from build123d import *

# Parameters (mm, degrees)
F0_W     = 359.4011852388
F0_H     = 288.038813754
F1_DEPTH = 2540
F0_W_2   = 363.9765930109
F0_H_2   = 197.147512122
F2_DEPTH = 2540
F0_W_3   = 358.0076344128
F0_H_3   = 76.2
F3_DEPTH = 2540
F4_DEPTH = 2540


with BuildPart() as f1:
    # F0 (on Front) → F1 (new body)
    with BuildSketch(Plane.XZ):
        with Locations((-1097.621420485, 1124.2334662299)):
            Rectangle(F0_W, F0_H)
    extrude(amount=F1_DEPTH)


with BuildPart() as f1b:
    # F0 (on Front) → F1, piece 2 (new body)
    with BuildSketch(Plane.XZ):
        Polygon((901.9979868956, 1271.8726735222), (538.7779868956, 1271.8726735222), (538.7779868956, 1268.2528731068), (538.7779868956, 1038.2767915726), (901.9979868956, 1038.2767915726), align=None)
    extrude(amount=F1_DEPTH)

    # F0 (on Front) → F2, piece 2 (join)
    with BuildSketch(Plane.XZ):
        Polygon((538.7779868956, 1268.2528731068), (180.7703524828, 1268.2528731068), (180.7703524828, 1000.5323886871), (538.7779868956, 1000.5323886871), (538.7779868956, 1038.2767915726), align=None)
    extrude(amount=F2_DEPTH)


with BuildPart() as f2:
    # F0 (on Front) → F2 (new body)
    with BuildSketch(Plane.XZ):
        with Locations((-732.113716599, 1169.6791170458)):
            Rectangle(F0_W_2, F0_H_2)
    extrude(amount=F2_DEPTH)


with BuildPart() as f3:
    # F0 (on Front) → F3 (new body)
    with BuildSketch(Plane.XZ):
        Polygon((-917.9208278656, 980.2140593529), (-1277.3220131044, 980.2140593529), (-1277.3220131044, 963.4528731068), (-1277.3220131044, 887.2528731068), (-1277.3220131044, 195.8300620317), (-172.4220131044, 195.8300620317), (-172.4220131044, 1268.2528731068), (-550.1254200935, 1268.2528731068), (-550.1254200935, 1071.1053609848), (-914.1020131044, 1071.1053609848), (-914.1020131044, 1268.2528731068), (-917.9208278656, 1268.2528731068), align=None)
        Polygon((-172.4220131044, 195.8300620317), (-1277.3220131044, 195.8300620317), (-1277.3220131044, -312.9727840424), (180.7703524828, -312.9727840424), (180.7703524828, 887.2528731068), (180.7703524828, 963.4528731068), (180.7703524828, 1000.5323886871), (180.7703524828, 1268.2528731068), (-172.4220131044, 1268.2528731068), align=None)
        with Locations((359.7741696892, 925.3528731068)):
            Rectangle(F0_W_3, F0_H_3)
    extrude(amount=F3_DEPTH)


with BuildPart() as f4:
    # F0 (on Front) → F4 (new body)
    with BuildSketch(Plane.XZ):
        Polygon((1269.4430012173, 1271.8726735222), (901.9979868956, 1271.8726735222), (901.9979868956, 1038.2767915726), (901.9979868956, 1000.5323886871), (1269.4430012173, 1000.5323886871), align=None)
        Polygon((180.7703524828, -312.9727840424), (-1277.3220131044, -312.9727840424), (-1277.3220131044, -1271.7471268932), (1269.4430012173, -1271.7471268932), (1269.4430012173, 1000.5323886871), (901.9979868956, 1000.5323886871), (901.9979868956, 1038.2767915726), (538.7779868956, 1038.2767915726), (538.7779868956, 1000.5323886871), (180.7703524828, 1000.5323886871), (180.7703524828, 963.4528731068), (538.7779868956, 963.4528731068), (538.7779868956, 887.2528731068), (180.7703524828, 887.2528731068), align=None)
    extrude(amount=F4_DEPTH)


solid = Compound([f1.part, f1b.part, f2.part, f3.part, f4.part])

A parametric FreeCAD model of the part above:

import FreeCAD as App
import Part
import Sketcher
from FreeCAD import Vector
Q = App.Units.Quantity

doc = App.newDocument("Part")
body = doc.addObject("PartDesign::Body", "Body")

# Sketch on XZ plane
sketch1 = body.newObject("Sketcher::SketchObject", "Sketch")
sketch1.AttachmentSupport = (doc.getObject("XZ_Plane"), [""])
sketch1.MapMode = "FlatFace"
sketch1.addGeometry(Part.LineSegment(Vector(-1277, 1268, 0), Vector(-1277, 980, 0)), False)
sketch1.addGeometry(Part.LineSegment(Vector(-1277, 980, 0), Vector(-918, 980, 0)), False)
sketch1.addGeometry(Part.LineSegment(Vector(-918, 980, 0), Vector(-918, 1268, 0)), False)
sketch1.addGeometry(Part.LineSegment(Vector(-918, 1268, 0), Vector(-1277, 1268, 0)), False)
sketch1.addConstraint(Sketcher.Constraint("Coincident", 0, 2, 1, 1))
sketch1.addConstraint(Sketcher.Constraint("Coincident", 1, 2, 2, 1))
sketch1.addConstraint(Sketcher.Constraint("Coincident", 2, 2, 3, 1))
sketch1.addConstraint(Sketcher.Constraint("Coincident", 3, 2, 0, 1))
sketch1.addConstraint(Sketcher.Constraint("Vertical", 0))
sketch1.addConstraint(Sketcher.Constraint("Horizontal", 1))
sketch1.addConstraint(Sketcher.Constraint("Vertical", 2))
sketch1.addConstraint(Sketcher.Constraint("Horizontal", 3))
sketch1.addConstraint(Sketcher.Constraint("DistanceX", 1, 1, 1, 2, 359.401185))
sketch1.addConstraint(Sketcher.Constraint("DistanceY", 0, 2, 0, 1, 288.038814))
sketch1.addConstraint(Sketcher.Constraint("DistanceY", -1, 1, 0, 2, 980.214059))
sketch1.addConstraint(Sketcher.Constraint("DistanceX", 0, 2, -1, 1, 1277.322013))
pad1 = body.newObject("PartDesign::Pad", "Pad")
pad1.Profile = sketch1
pad1.Length = Q("100 in")
body2 = doc.addObject("PartDesign::Body", "Body001")

# Sketch on XZ plane
sketch2 = body2.newObject("Sketcher::SketchObject", "Sketch001")
sketch2.AttachmentSupport = (doc.getObject("XZ_Plane001"), [""])
sketch2.MapMode = "FlatFace"
sketch2.addGeometry(Part.LineSegment(Vector(902, 1272, 0), Vector(539, 1272, 0)), False)
sketch2.addGeometry(Part.LineSegment(Vector(539, 1272, 0), Vector(539, 1038, 0)), False)
sketch2.addGeometry(Part.LineSegment(Vector(539, 1038, 0), Vector(902, 1038, 0)), False)
sketch2.addGeometry(Part.LineSegment(Vector(902, 1038, 0), Vector(902, 1272, 0)), False)
sketch2.addConstraint(Sketcher.Constraint("Coincident", 0, 2, 1, 1))
sketch2.addConstraint(Sketcher.Constraint("Coincident", 1, 2, 2, 1))
sketch2.addConstraint(Sketcher.Constraint("Coincident", 2, 2, 3, 1))
sketch2.addConstraint(Sketcher.Constraint("Coincident", 3, 2, 0, 1))
sketch2.addConstraint(Sketcher.Constraint("Horizontal", 0))
sketch2.addConstraint(Sketcher.Constraint("Vertical", 1))
sketch2.addConstraint(Sketcher.Constraint("Horizontal", 2))
sketch2.addConstraint(Sketcher.Constraint("Vertical", 3))
sketch2.addConstraint(Sketcher.Constraint("DistanceX", 0, 2, 0, 1, Q("14.3 in")))
sketch2.addConstraint(Sketcher.Constraint("DistanceY", 1, 2, 1, 1, 233.595882))
sketch2.addConstraint(Sketcher.Constraint("DistanceY", -1, 1, 1, 2, 1038.276792))
sketch2.addConstraint(Sketcher.Constraint("DistanceX", -1, 1, 0, 2, 538.777987))
pad2 = body2.newObject("PartDesign::Pad", "Pad001")
pad2.Profile = sketch2
pad2.Length = Q("100 in")

# Sketch on XZ plane
sketch3 = body2.newObject("Sketcher::SketchObject", "Sketch002")
sketch3.AttachmentSupport = (doc.getObject("XZ_Plane001"), [""])
sketch3.MapMode = "FlatFace"
sketch3.addGeometry(Part.LineSegment(Vector(539, 1268, 0), Vector(181, 1268, 0)), False)
sketch3.addGeometry(Part.LineSegment(Vector(181, 1268, 0), Vector(181, 1001, 0)), False)
sketch3.addGeometry(Part.LineSegment(Vector(181, 1001, 0), Vector(539, 1001, 0)), False)
sketch3.addGeometry(Part.LineSegment(Vector(539, 1001, 0), Vector(539, 1268, 0)), False)
sketch3.addConstraint(Sketcher.Constraint("Coincident", 0, 2, 1, 1))
sketch3.addConstraint(Sketcher.Constraint("Coincident", 1, 2, 2, 1))
sketch3.addConstraint(Sketcher.Constraint("Coincident", 2, 2, 3, 1))
sketch3.addConstraint(Sketcher.Constraint("Coincident", 3, 2, 0, 1))
sketch3.addConstraint(Sketcher.Constraint("Horizontal", 0))
sketch3.addConstraint(Sketcher.Constraint("Vertical", 1))
sketch3.addConstraint(Sketcher.Constraint("Horizontal", 2))
sketch3.addConstraint(Sketcher.Constraint("Vertical", 3))
sketch3.addConstraint(Sketcher.Constraint("DistanceX", 0, 2, 0, 1, 358.007634))
sketch3.addConstraint(Sketcher.Constraint("DistanceY", 1, 2, 1, 1, 267.720484))
sketch3.addConstraint(Sketcher.Constraint("DistanceY", -1, 1, 1, 2, 1000.532389))
sketch3.addConstraint(Sketcher.Constraint("DistanceX", -1, 1, 0, 2, 180.770352))
pad3 = body2.newObject("PartDesign::Pad", "Pad002")
pad3.Profile = sketch3
pad3.Length = Q("100 in")
body3 = doc.addObject("PartDesign::Body", "Body002")

# Sketch on XZ plane
sketch4 = body3.newObject("Sketcher::SketchObject", "Sketch003")
sketch4.AttachmentSupport = (doc.getObject("XZ_Plane002"), [""])
sketch4.MapMode = "FlatFace"
sketch4.addGeometry(Part.LineSegment(Vector(-914, 1268, 0), Vector(-914, 1071, 0)), False)
sketch4.addGeometry(Part.LineSegment(Vector(-914, 1071, 0), Vector(-550, 1071, 0)), False)
sketch4.addGeometry(Part.LineSegment(Vector(-550, 1071, 0), Vector(-550, 1268, 0)), False)
sketch4.addGeometry(Part.LineSegment(Vector(-550, 1268, 0), Vector(-914, 1268, 0)), False)
sketch4.addConstraint(Sketcher.Constraint("Coincident", 0, 2, 1, 1))
sketch4.addConstraint(Sketcher.Constraint("Coincident", 1, 2, 2, 1))
sketch4.addConstraint(Sketcher.Constraint("Coincident", 2, 2, 3, 1))
sketch4.addConstraint(Sketcher.Constraint("Coincident", 3, 2, 0, 1))
sketch4.addConstraint(Sketcher.Constraint("Vertical", 0))
sketch4.addConstraint(Sketcher.Constraint("Horizontal", 1))
sketch4.addConstraint(Sketcher.Constraint("Vertical", 2))
sketch4.addConstraint(Sketcher.Constraint("Horizontal", 3))
sketch4.addConstraint(Sketcher.Constraint("DistanceX", 1, 1, 1, 2, 363.976593))
sketch4.addConstraint(Sketcher.Constraint("DistanceY", 0, 2, 0, 1, 197.147512))
sketch4.addConstraint(Sketcher.Constraint("DistanceY", -1, 1, 0, 2, 1071.105361))
sketch4.addConstraint(Sketcher.Constraint("DistanceX", 1, 2, -1, 1, 550.12542))
pad4 = body3.newObject("PartDesign::Pad", "Pad003")
pad4.Profile = sketch4
pad4.Length = Q("100 in")
body4 = doc.addObject("PartDesign::Body", "Body003")

# Sketch on XZ plane
sketch5 = body4.newObject("Sketcher::SketchObject", "Sketch004")
sketch5.AttachmentSupport = (doc.getObject("XZ_Plane003"), [""])
sketch5.MapMode = "FlatFace"
sketch5.addGeometry(Part.LineSegment(Vector(-917.9, 980.2, 0), Vector(-1277.3, 980.2, 0)), False)
sketch5.addGeometry(Part.LineSegment(Vector(-1277.3, 980.2, 0), Vector(-1277.3, -313, 0)), False)
sketch5.addGeometry(Part.LineSegment(Vector(-1277.3, -313, 0), Vector(180.8, -313, 0)), False)
sketch5.addGeometry(Part.LineSegment(Vector(180.8, -313, 0), Vector(180.8, 887.3, 0)), False)
sketch5.addGeometry(Part.LineSegment(Vector(180.8, 887.3, 0), Vector(538.8, 887.3, 0)), False)
sketch5.addGeometry(Part.LineSegment(Vector(538.8, 887.3, 0), Vector(538.8, 963.5, 0)), False)
sketch5.addGeometry(Part.LineSegment(Vector(538.8, 963.5, 0), Vector(180.8, 963.5, 0)), False)
sketch5.addGeometry(Part.LineSegment(Vector(180.8, 963.5, 0), Vector(180.8, 1268.3, 0)), False)
sketch5.addGeometry(Part.LineSegment(Vector(180.8, 1268.3, 0), Vector(-550.1, 1268.3, 0)), False)
sketch5.addGeometry(Part.LineSegment(Vector(-550.1, 1268.3, 0), Vector(-550.1, 1071.1, 0)), False)
sketch5.addGeometry(Part.LineSegment(Vector(-550.1, 1071.1, 0), Vector(-914.1, 1071.1, 0)), False)
sketch5.addGeometry(Part.LineSegment(Vector(-914.1, 1071.1, 0), Vector(-914.1, 1268.3, 0)), False)
sketch5.addGeometry(Part.LineSegment(Vector(-914.1, 1268.3, 0), Vector(-917.9, 1268.3, 0)), False)
sketch5.addGeometry(Part.LineSegment(Vector(-917.9, 1268.3, 0), Vector(-917.9, 980.2, 0)), False)
sketch5.addConstraint(Sketcher.Constraint("Coincident", 0, 2, 1, 1))
sketch5.addConstraint(Sketcher.Constraint("Coincident", 1, 2, 2, 1))
sketch5.addConstraint(Sketcher.Constraint("Coincident", 2, 2, 3, 1))
sketch5.addConstraint(Sketcher.Constraint("Coincident", 3, 2, 4, 1))
sketch5.addConstraint(Sketcher.Constraint("Coincident", 4, 2, 5, 1))
sketch5.addConstraint(Sketcher.Constraint("Coincident", 5, 2, 6, 1))
sketch5.addConstraint(Sketcher.Constraint("Coincident", 6, 2, 7, 1))
sketch5.addConstraint(Sketcher.Constraint("Coincident", 7, 2, 8, 1))
sketch5.addConstraint(Sketcher.Constraint("Coincident", 8, 2, 9, 1))
sketch5.addConstraint(Sketcher.Constraint("Coincident", 9, 2, 10, 1))
sketch5.addConstraint(Sketcher.Constraint("Coincident", 10, 2, 11, 1))
sketch5.addConstraint(Sketcher.Constraint("Coincident", 11, 2, 12, 1))
sketch5.addConstraint(Sketcher.Constraint("Coincident", 12, 2, 13, 1))
sketch5.addConstraint(Sketcher.Constraint("Coincident", 13, 2, 0, 1))
sketch5.addConstraint(Sketcher.Constraint("Horizontal", 0))
sketch5.addConstraint(Sketcher.Constraint("Vertical", 1))
sketch5.addConstraint(Sketcher.Constraint("Horizontal", 2))
sketch5.addConstraint(Sketcher.Constraint("Vertical", 3))
sketch5.addConstraint(Sketcher.Constraint("Horizontal", 4))
sketch5.addConstraint(Sketcher.Constraint("Vertical", 5))
sketch5.addConstraint(Sketcher.Constraint("Horizontal", 6))
sketch5.addConstraint(Sketcher.Constraint("Vertical", 7))
sketch5.addConstraint(Sketcher.Constraint("Horizontal", 8))
sketch5.addConstraint(Sketcher.Constraint("Vertical", 9))
sketch5.addConstraint(Sketcher.Constraint("Horizontal", 10))
sketch5.addConstraint(Sketcher.Constraint("Vertical", 11))
sketch5.addConstraint(Sketcher.Constraint("Horizontal", 12))
sketch5.addConstraint(Sketcher.Constraint("Vertical", 13))
sketch5.addConstraint(Sketcher.Constraint("Horizontal", 8, 2, 11, 2))
sketch5.addConstraint(Sketcher.Constraint("Vertical", 3, 2, 6, 2))
sketch5.addConstraint(Sketcher.Constraint("DistanceY", 5, 1, 5, 2, Q("3 in")))
sketch5.addConstraint(Sketcher.Constraint("DistanceY", 7, 1, 7, 2, Q("12 in")))
sketch5.addConstraint(Sketcher.Constraint("DistanceX", 0, 2, 4, 2, Q("71.5 in")))
sketch5.addConstraint(Sketcher.Constraint("DistanceX", 0, 2, 10, 2, Q("14.3 in")))
sketch5.addConstraint(Sketcher.Constraint("DistanceY", 0, 2, 9, 2, 90.891302))
sketch5.addConstraint(Sketcher.Constraint("DistanceX", 0, 2, 0, 1, 359.401185))
sketch5.addConstraint(Sketcher.Constraint("DistanceX", 2, 1, 2, 2, 1458.092366))
sketch5.addConstraint(Sketcher.Constraint("DistanceX", 8, 2, 8, 1, 730.895773))
sketch5.addConstraint(Sketcher.Constraint("DistanceY", 1, 2, 1, 1, 1293.186843))
sketch5.addConstraint(Sketcher.Constraint("DistanceY", 3, 1, 3, 2, 1200.225657))
sketch5.addConstraint(Sketcher.Constraint("DistanceY", -1, 1, 0, 2, 980.214059))
sketch5.addConstraint(Sketcher.Constraint("DistanceX", 8, 2, -1, 1, 550.12542))
pad5 = body4.newObject("PartDesign::Pad", "Pad004")
pad5.Profile = sketch5
pad5.Length = Q("100 in")
body5 = doc.addObject("PartDesign::Body", "Body004")

# Sketch on XZ plane
sketch6 = body5.newObject("Sketcher::SketchObject", "Sketch005")
sketch6.AttachmentSupport = (doc.getObject("XZ_Plane004"), [""])
sketch6.MapMode = "FlatFace"
sketch6.addGeometry(Part.LineSegment(Vector(1269.443001, 1271.872674, 0), Vector(901.997987, 1271.872674, 0)), False)
sketch6.addGeometry(Part.LineSegment(Vector(901.997987, 1271.872674, 0), Vector(901.997987, 1038.276792, 0)), False)
sketch6.addGeometry(Part.LineSegment(Vector(901.997987, 1038.276792, 0), Vector(538.777987, 1038.276792, 0)), False)
sketch6.addGeometry(Part.LineSegment(Vector(538.777987, 1038.276792, 0), Vector(538.777987, 1000.532389, 0)), False)
sketch6.addGeometry(Part.LineSegment(Vector(538.777987, 1000.532389, 0), Vector(180.770352, 1000.532389, 0)), False)
sketch6.addGeometry(Part.LineSegment(Vector(180.770352, 1000.532389, 0), Vector(180.770352, 963.452873, 0)), False)
sketch6.addGeometry(Part.LineSegment(Vector(180.770352, 963.452873, 0), Vector(538.777987, 963.452873, 0)), False)
sketch6.addGeometry(Part.LineSegment(Vector(538.777987, 963.452873, 0), Vector(538.777987, 887.252873, 0)), False)
sketch6.addGeometry(Part.LineSegment(Vector(538.777987, 887.252873, 0), Vector(180.770352, 887.252873, 0)), False)
sketch6.addGeometry(Part.LineSegment(Vector(180.770352, 887.252873, 0), Vector(180.770352, -312.972784, 0)), False)
sketch6.addGeometry(Part.LineSegment(Vector(180.770352, -312.972784, 0), Vector(-1277.322013, -312.972784, 0)), False)
sketch6.addGeometry(Part.LineSegment(Vector(-1277.322013, -312.972784, 0), Vector(-1277.322013, -1271.747127, 0)), False)
sketch6.addGeometry(Part.LineSegment(Vector(-1277.322013, -1271.747127, 0), Vector(1269.443001, -1271.747127, 0)), False)
sketch6.addGeometry(Part.LineSegment(Vector(1269.443001, -1271.747127, 0), Vector(1269.443001, 1271.872674, 0)), False)
sketch6.addConstraint(Sketcher.Constraint("Coincident", 0, 2, 1, 1))
sketch6.addConstraint(Sketcher.Constraint("Coincident", 1, 2, 2, 1))
sketch6.addConstraint(Sketcher.Constraint("Coincident", 2, 2, 3, 1))
sketch6.addConstraint(Sketcher.Constraint("Coincident", 3, 2, 4, 1))
sketch6.addConstraint(Sketcher.Constraint("Coincident", 4, 2, 5, 1))
sketch6.addConstraint(Sketcher.Constraint("Coincident", 5, 2, 6, 1))
sketch6.addConstraint(Sketcher.Constraint("Coincident", 6, 2, 7, 1))
sketch6.addConstraint(Sketcher.Constraint("Coincident", 7, 2, 8, 1))
sketch6.addConstraint(Sketcher.Constraint("Coincident", 8, 2, 9, 1))
sketch6.addConstraint(Sketcher.Constraint("Coincident", 9, 2, 10, 1))
sketch6.addConstraint(Sketcher.Constraint("Coincident", 10, 2, 11, 1))
sketch6.addConstraint(Sketcher.Constraint("Coincident", 11, 2, 12, 1))
sketch6.addConstraint(Sketcher.Constraint("Coincident", 12, 2, 13, 1))
sketch6.addConstraint(Sketcher.Constraint("Coincident", 13, 2, 0, 1))
sketch6.addConstraint(Sketcher.Constraint("Horizontal", 0))
sketch6.addConstraint(Sketcher.Constraint("Vertical", 1))
sketch6.addConstraint(Sketcher.Constraint("Horizontal", 2))
sketch6.addConstraint(Sketcher.Constraint("Vertical", 3))
sketch6.addConstraint(Sketcher.Constraint("Horizontal", 4))
sketch6.addConstraint(Sketcher.Constraint("Vertical", 5))
sketch6.addConstraint(Sketcher.Constraint("Horizontal", 6))
sketch6.addConstraint(Sketcher.Constraint("Vertical", 7))
sketch6.addConstraint(Sketcher.Constraint("Horizontal", 8))
sketch6.addConstraint(Sketcher.Constraint("Vertical", 9))
sketch6.addConstraint(Sketcher.Constraint("Horizontal", 10))
sketch6.addConstraint(Sketcher.Constraint("Vertical", 11))
sketch6.addConstraint(Sketcher.Constraint("Horizontal", 12))
sketch6.addConstraint(Sketcher.Constraint("Vertical", 13))
sketch6.addConstraint(Sketcher.Constraint("Vertical", 3, 2, 6, 2))
sketch6.addConstraint(Sketcher.Constraint("Vertical", 5, 2, 8, 2))
sketch6.addConstraint(Sketcher.Constraint("DistanceY", 7, 2, 7, 1, Q("3 in")))
sketch6.addConstraint(Sketcher.Constraint("DistanceX", 2, 2, 2, 1, Q("14.3 in")))
sketch6.addConstraint(Sketcher.Constraint("DistanceY", 11, 2, 8, 2, Q("85 in")))
sketch6.addConstraint(Sketcher.Constraint("DistanceX", 10, 2, 7, 2, Q("71.5 in")))
sketch6.addConstraint(Sketcher.Constraint("DistanceY", 3, 2, 3, 1, Q("1.4860001 in")))
sketch6.addConstraint(Sketcher.Constraint("DistanceY", 13, 1, 13, 2, 2543.6198))
sketch6.addConstraint(Sketcher.Constraint("DistanceY", 1, 2, 1, 1, 233.595882))
sketch6.addConstraint(Sketcher.Constraint("DistanceX", -1, 1, 12, 2, 1269.443001))
sketch6.addConstraint(Sketcher.Constraint("DistanceX", 0, 2, 0, 1, 367.445014))
sketch6.addConstraint(Sketcher.Constraint("DistanceX", 4, 2, 4, 1, 358.007634))
sketch6.addConstraint(Sketcher.Constraint("DistanceY", 9, 2, 9, 1, 1200.225657))
sketch6.addConstraint(Sketcher.Constraint("DistanceY", -1, 1, 1, 2, 1038.276792))
pad6 = body5.newObject("PartDesign::Pad", "Pad005")
pad6.Profile = sketch6
pad6.Length = Q("100 in")

doc.recompute()
